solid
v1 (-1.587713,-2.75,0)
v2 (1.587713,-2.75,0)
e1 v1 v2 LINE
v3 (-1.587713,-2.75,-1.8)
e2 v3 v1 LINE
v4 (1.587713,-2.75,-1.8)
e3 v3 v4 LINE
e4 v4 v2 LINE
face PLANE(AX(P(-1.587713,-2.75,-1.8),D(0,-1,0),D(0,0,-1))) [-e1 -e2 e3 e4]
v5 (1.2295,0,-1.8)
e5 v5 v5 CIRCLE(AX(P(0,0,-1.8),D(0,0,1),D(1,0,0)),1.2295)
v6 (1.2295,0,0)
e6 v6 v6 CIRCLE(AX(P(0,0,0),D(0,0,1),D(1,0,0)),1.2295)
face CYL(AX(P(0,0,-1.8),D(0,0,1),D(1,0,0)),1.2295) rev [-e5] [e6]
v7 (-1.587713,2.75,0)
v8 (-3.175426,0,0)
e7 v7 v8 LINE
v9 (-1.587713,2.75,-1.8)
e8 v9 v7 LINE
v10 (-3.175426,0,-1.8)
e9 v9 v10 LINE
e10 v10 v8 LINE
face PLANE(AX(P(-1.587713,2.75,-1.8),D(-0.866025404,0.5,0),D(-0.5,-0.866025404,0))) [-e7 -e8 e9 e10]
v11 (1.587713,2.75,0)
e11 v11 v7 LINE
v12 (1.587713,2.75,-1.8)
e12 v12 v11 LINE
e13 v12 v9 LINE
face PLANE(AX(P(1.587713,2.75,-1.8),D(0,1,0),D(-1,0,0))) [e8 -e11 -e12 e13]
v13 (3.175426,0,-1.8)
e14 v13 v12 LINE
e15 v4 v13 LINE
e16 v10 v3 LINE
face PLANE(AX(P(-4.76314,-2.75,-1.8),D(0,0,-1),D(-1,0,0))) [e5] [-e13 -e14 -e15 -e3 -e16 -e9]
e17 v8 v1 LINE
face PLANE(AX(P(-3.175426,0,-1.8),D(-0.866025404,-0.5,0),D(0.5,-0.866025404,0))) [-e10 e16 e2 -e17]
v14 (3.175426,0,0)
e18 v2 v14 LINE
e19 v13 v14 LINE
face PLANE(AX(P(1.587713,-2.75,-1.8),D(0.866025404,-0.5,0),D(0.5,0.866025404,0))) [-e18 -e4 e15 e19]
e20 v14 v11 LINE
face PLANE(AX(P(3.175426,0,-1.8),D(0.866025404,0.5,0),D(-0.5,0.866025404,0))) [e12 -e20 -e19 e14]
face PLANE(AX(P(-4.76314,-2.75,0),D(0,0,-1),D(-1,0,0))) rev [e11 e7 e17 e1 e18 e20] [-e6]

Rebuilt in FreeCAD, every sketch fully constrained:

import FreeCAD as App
import Part
import Sketcher
from FreeCAD import Vector
Q = App.Units.Quantity

doc = App.newDocument("Part")
params = doc.addObject("Spreadsheet::Sheet", "Params")
for row, (alias, value) in enumerate([
    ("pad1_length", "1.8 mm"),
], start=1):
    params.set(f"A{row}", alias)
    params.set(f"B{row}", "=" + value)
    params.setAlias(f"B{row}", alias)

body = doc.addObject("PartDesign::Body", "Body")

# Sketch on XY plane
sketch1 = doc.addObject("Sketcher::SketchObject", "Sketch")
body.addObject(sketch1)
sketch1.AttachmentSupport = (doc.XY_Plane, [""])
sketch1.MapMode = "FlatFace"
sketch1.addGeometry([
    Part.LineSegment(Vector(1.6, -2.8, 0), Vector(3.2, 0, 0)),  # 0
    Part.LineSegment(Vector(3.2, 0, 0), Vector(1.6, 2.8, 0)),  # 1
    Part.LineSegment(Vector(1.6, 2.8, 0), Vector(-1.6, 2.8, 0)),  # 2
    Part.LineSegment(Vector(-1.6, 2.8, 0), Vector(-3.2, 0, 0)),  # 3
    Part.LineSegment(Vector(-3.2, 0, 0), Vector(-1.6, -2.8, 0)),  # 4
    Part.LineSegment(Vector(-1.6, -2.8, 0), Vector(1.6, -2.8, 0)),  # 5
    Part.Circle(Vector(0, 0, 0), Vector(0, 0, 1), 1.2),  # 6
], False)
sketch1.addConstraint([
    Sketcher.Constraint("Coincident", 0, 2, 1, 1),
    Sketcher.Constraint("Coincident", 1, 2, 2, 1),
    Sketcher.Constraint("Coincident", 2, 2, 3, 1),
    Sketcher.Constraint("Coincident", 3, 2, 4, 1),
    Sketcher.Constraint("Coincident", 4, 2, 5, 1),
    Sketcher.Constraint("Coincident", 5, 2, 0, 1),
    Sketcher.Constraint("Horizontal", 2),
    Sketcher.Constraint("Horizontal", 5),
    Sketcher.Constraint("Coincident", 6, 3, -1, 1),
    Sketcher.Constraint("Symmetric", 0, 2, 3, 2, -1, 1),
    Sketcher.Constraint("Symmetric", 1, 2, 4, 2, -1, 1),
    Sketcher.Constraint("PointOnObject", 0, 2, -1),
    Sketcher.Constraint("Parallel", 0, 3),
    Sketcher.Constraint("Vertical", 2, 2, 4, 2),
    Sketcher.Constraint("Angle", 0, Q("60 deg")),
    Sketcher.Constraint("Diameter", 6, Q("2.459 mm")),
    Sketcher.Constraint("DistanceY", 4, 2, 2, 2, Q("5.5 mm")),
    Sketcher.Constraint("DistanceX", 2, 2, 2, 1, Q("3.175426 mm")),
])
pad1 = doc.addObject("PartDesign::Pad", "Pad")
body.addObject(pad1)
pad1.Profile = sketch1
pad1.setExpression("Length", "Params.pad1_length")
pad1.Reversed = True

doc.recompute()
